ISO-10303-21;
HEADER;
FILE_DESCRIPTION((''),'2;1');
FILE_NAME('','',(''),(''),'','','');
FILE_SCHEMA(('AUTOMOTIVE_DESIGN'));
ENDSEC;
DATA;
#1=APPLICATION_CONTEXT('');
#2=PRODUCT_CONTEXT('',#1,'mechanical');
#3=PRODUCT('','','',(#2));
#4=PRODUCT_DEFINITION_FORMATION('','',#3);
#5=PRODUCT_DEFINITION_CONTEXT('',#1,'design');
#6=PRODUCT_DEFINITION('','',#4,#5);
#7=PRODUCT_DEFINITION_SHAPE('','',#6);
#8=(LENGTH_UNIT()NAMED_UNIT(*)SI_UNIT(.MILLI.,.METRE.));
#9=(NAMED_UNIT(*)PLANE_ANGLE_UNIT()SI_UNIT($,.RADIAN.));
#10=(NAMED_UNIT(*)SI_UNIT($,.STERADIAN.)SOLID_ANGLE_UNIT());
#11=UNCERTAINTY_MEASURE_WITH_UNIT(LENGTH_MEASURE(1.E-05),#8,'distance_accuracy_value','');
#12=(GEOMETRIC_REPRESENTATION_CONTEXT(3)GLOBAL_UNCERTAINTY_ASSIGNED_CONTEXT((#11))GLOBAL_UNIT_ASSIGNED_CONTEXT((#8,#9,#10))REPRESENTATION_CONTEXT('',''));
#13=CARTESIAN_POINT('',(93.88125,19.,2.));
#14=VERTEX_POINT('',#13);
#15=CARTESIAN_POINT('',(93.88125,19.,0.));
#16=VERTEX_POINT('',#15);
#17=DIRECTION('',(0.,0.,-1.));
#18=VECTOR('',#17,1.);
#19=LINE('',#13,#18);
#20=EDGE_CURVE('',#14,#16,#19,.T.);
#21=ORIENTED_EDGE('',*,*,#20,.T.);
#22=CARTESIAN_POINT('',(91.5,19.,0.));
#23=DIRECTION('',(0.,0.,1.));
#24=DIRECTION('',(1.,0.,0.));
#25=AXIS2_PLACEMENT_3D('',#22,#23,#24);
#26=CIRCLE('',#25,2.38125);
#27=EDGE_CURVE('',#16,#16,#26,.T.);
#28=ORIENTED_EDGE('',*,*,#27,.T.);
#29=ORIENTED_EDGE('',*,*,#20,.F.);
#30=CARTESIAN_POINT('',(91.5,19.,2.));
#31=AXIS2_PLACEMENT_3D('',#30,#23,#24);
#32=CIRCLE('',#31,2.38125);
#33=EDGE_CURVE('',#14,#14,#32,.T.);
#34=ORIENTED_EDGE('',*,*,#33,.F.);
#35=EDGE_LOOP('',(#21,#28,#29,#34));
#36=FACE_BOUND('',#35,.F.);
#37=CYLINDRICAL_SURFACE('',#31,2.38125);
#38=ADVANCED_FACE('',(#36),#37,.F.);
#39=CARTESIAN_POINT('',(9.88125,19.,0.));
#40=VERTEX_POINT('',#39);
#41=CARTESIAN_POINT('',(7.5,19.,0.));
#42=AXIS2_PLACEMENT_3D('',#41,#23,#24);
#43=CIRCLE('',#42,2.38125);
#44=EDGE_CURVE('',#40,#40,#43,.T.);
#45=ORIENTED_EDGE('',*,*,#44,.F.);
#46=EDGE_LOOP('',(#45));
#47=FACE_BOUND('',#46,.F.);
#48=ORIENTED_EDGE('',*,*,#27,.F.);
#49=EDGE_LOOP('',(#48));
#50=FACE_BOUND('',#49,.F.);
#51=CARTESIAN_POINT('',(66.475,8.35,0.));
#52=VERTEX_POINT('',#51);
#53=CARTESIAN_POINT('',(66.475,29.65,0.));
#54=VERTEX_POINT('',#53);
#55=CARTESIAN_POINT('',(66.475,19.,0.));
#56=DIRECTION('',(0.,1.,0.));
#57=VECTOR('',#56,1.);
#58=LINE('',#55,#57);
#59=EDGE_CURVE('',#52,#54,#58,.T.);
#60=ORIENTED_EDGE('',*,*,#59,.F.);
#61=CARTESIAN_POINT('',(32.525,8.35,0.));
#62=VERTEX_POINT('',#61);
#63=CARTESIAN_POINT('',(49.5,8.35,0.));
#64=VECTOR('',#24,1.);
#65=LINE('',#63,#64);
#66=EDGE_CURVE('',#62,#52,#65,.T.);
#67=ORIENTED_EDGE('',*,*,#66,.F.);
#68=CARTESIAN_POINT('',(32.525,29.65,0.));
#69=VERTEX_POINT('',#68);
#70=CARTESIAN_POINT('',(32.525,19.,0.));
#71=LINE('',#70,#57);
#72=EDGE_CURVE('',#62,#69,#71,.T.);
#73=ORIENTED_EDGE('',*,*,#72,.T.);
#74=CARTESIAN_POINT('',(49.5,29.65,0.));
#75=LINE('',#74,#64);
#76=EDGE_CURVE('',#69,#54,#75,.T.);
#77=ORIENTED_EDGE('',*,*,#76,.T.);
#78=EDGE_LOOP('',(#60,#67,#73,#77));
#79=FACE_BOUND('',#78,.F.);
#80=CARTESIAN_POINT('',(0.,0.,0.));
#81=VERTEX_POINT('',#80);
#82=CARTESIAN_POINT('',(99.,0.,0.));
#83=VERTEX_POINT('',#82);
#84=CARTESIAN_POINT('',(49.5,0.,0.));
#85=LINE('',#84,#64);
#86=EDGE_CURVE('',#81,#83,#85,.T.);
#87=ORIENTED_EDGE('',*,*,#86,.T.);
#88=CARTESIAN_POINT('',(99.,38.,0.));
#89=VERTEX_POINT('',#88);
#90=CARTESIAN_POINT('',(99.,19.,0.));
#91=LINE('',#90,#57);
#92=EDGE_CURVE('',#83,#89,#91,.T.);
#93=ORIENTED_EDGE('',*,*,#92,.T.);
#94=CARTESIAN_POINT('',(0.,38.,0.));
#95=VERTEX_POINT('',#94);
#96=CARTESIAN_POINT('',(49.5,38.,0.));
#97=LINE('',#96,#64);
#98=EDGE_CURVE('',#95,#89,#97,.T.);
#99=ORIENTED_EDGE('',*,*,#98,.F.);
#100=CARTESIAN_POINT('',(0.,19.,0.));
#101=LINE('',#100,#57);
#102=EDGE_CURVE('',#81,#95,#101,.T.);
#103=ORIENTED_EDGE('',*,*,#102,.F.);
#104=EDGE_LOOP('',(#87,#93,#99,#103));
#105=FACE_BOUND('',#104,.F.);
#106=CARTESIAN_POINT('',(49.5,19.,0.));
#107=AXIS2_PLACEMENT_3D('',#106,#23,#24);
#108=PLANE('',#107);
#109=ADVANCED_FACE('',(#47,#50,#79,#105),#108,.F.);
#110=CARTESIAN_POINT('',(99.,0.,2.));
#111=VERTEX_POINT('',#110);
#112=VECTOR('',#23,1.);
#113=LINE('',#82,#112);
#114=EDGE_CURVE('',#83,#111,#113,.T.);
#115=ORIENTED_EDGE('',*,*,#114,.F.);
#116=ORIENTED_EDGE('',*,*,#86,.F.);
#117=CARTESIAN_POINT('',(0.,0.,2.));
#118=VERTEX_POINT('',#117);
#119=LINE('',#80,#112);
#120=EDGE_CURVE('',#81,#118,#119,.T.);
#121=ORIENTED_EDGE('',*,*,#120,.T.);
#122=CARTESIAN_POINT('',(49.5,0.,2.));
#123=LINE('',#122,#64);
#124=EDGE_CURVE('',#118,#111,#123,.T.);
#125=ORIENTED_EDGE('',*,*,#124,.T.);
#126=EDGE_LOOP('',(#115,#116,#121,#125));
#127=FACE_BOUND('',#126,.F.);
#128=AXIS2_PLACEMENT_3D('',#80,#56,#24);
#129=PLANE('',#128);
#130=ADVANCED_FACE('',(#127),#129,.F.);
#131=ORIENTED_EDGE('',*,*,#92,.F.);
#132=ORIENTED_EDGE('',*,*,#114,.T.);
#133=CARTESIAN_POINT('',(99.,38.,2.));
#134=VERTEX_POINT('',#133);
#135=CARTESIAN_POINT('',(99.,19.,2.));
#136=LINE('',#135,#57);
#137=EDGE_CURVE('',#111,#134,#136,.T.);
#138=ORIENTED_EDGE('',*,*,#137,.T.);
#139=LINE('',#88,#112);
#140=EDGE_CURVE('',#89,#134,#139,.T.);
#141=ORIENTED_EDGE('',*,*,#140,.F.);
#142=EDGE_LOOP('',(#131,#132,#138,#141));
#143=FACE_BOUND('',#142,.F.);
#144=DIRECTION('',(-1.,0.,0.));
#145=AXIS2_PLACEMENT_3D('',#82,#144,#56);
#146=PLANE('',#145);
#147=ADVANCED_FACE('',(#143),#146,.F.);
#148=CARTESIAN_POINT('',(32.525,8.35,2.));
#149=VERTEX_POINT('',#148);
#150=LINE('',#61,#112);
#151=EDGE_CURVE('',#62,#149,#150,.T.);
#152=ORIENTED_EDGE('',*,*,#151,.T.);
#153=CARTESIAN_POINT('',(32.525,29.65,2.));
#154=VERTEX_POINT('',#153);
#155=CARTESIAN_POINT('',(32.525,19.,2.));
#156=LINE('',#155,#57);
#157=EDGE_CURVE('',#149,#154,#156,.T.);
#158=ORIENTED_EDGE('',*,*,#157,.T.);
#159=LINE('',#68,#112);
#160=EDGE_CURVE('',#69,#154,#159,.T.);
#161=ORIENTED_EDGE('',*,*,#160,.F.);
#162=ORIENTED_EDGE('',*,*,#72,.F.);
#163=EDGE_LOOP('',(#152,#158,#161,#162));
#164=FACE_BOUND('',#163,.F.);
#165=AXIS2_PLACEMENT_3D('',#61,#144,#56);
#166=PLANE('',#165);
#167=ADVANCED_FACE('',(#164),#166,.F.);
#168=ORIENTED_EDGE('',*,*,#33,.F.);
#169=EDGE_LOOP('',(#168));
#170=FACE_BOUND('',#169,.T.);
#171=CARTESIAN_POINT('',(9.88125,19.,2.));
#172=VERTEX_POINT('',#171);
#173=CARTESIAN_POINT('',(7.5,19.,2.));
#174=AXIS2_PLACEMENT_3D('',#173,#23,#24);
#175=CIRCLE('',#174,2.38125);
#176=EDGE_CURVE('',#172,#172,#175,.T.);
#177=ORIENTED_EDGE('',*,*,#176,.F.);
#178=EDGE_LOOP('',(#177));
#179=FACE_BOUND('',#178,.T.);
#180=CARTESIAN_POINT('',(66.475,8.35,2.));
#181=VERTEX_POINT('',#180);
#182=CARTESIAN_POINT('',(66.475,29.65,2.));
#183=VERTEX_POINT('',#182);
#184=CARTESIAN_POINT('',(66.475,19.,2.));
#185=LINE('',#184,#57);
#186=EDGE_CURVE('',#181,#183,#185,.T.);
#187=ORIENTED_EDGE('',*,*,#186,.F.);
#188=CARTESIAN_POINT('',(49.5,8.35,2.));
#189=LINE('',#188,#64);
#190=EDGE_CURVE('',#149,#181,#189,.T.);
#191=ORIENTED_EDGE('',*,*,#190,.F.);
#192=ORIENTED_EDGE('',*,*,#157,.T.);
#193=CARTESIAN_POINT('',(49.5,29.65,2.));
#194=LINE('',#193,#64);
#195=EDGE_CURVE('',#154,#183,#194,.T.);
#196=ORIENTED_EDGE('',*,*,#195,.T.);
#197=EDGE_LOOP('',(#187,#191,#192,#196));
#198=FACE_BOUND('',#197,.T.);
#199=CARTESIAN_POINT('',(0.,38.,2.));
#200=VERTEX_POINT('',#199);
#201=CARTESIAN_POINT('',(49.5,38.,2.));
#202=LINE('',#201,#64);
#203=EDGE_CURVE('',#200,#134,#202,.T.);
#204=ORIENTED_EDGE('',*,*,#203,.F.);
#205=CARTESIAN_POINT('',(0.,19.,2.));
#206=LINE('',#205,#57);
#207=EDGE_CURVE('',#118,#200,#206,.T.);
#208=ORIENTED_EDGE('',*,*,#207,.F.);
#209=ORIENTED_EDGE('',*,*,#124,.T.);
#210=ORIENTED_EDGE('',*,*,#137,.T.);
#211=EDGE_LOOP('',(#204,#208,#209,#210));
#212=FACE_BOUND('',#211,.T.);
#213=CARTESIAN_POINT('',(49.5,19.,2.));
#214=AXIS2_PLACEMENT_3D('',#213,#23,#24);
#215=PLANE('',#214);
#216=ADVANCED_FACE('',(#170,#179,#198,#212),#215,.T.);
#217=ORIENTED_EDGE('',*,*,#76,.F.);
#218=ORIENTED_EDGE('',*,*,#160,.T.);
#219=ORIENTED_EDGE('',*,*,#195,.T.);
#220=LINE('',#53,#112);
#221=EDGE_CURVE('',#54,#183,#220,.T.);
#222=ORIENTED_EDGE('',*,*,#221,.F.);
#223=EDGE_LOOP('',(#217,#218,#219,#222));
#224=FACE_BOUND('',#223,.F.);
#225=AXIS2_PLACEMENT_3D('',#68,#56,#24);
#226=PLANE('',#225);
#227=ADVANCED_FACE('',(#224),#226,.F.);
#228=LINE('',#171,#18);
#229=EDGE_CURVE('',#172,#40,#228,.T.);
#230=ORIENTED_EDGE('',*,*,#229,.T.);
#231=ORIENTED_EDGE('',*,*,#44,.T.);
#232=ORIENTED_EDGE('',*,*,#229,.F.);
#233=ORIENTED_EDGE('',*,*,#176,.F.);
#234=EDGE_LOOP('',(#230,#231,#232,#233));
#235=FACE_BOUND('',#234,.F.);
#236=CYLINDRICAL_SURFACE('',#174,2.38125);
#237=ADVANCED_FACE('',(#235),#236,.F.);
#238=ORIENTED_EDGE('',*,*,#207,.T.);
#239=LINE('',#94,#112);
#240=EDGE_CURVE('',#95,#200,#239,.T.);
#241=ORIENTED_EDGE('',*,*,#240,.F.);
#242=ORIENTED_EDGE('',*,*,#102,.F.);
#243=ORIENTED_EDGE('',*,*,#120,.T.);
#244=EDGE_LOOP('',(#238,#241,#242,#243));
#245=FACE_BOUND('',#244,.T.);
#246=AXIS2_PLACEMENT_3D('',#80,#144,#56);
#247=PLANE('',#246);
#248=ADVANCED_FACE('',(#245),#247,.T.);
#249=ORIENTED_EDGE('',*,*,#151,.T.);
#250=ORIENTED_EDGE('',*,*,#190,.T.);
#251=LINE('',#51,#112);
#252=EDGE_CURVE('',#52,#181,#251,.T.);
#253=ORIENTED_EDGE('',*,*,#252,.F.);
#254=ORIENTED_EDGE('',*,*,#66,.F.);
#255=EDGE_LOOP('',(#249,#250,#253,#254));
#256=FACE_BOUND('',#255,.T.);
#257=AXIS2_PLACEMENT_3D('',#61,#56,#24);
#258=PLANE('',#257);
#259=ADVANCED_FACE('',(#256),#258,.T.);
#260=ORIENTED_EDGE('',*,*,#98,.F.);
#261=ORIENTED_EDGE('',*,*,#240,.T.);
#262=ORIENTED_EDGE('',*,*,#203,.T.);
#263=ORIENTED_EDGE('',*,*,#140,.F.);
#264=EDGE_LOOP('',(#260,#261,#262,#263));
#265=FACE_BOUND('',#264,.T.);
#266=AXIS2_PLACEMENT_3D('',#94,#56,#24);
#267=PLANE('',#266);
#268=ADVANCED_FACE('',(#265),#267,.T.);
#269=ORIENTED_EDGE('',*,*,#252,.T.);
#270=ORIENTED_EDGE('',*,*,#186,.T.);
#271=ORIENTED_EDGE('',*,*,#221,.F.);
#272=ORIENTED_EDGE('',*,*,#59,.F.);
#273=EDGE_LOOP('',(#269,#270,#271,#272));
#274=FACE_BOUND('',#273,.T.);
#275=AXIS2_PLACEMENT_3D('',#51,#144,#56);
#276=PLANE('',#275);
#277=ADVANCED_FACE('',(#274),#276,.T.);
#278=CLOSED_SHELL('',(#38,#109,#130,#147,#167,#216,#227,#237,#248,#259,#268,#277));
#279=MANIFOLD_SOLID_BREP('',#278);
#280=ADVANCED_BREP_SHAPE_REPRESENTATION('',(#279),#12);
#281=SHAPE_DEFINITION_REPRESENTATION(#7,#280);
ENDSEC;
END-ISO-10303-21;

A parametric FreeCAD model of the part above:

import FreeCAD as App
import Part
import Sketcher
Q = App.Units.Quantity

doc = App.newDocument("Part")
body = doc.addObject("PartDesign::Body", "Body")

# Sketch on XY plane
sketch1 = body.newObject("Sketcher::SketchObject", "Sketch")
sketch1.AttachmentSupport = (doc.getObject("XY_Plane"), [""])
sketch1.MapMode = "FlatFace"
sketch1.addGeometry(Part.LineSegment(App.Vector(0, 38, 0), App.Vector(0, 0, 0)), False)
sketch1.addGeometry(Part.LineSegment(App.Vector(0, 0, 0), App.Vector(99, 0, 0)), False)
sketch1.addGeometry(Part.LineSegment(App.Vector(99, 0, 0), App.Vector(99, 38, 0)), False)
sketch1.addGeometry(Part.LineSegment(App.Vector(99, 38, 0), App.Vector(0, 38, 0)), False)
sketch1.addGeometry(Part.LineSegment(App.Vector(66.475, 8.35, 0), App.Vector(32.525, 8.35, 0)), False)
sketch1.addGeometry(Part.LineSegment(App.Vector(32.525, 8.35, 0), App.Vector(32.525, 29.65, 0)), False)
sketch1.addGeometry(Part.LineSegment(App.Vector(32.525, 29.65, 0), App.Vector(66.475, 29.65, 0)), False)
sketch1.addGeometry(Part.LineSegment(App.Vector(66.475, 29.65, 0), App.Vector(66.475, 8.35, 0)), False)
sketch1.addConstraint(Sketcher.Constraint("Coincident", 0, 2, 1, 1))
sketch1.addConstraint(Sketcher.Constraint("Coincident", 1, 2, 2, 1))
sketch1.addConstraint(Sketcher.Constraint("Coincident", 2, 2, 3, 1))
sketch1.addConstraint(Sketcher.Constraint("Coincident", 3, 2, 0, 1))
sketch1.addConstraint(Sketcher.Constraint("Coincident", 4, 2, 5, 1))
sketch1.addConstraint(Sketcher.Constraint("Coincident", 5, 2, 6, 1))
sketch1.addConstraint(Sketcher.Constraint("Coincident", 6, 2, 7, 1))
sketch1.addConstraint(Sketcher.Constraint("Coincident", 7, 2, 4, 1))
sketch1.addConstraint(Sketcher.Constraint("Vertical", 0))
sketch1.addConstraint(Sketcher.Constraint("Horizontal", 1))
sketch1.addConstraint(Sketcher.Constraint("Vertical", 2))
sketch1.addConstraint(Sketcher.Constraint("Horizontal", 3))
sketch1.addConstraint(Sketcher.Constraint("Horizontal", 4))
sketch1.addConstraint(Sketcher.Constraint("Vertical", 5))
sketch1.addConstraint(Sketcher.Constraint("Horizontal", 6))
sketch1.addConstraint(Sketcher.Constraint("Vertical", 7))
sketch1.addConstraint(Sketcher.Constraint("Coincident", 0, 2, -1, 1))
sketch1.addConstraint(Sketcher.Constraint("DistanceX", 1, 1, 1, 2, Q("99 mm")))
sketch1.addConstraint(Sketcher.Constraint("DistanceY", 0, 2, 0, 1, Q("38 mm")))
sketch1.addConstraint(Sketcher.Constraint("DistanceY", 5, 1, 5, 2, Q("21.3 mm")))
sketch1.addConstraint(Sketcher.Constraint("DistanceX", 4, 2, 4, 1, Q("33.95 mm")))
sketch1.addConstraint(Sketcher.Constraint("DistanceY", -1, 1, 4, 2, Q("8.35 mm")))
sketch1.addConstraint(Sketcher.Constraint("DistanceX", -1, 1, 4, 2, Q("32.525 mm")))
pad1 = body.newObject("PartDesign::Pad", "Pad")
pad1.Profile = sketch1
pad1.Length = 2

# Sketch on XY plane
sketch2 = body.newObject("Sketcher::SketchObject", "Sketch001")
sketch2.AttachmentSupport = (doc.getObject("XY_Plane"), [""])
sketch2.MapMode = "FlatFace"
sketch2.AttachmentOffset = App.Placement(App.Vector(0, 0, 2), App.Rotation())
sketch2.addGeometry(Part.Circle(App.Vector(7.5, 19, 0), App.Vector(0, 0, 1), 2.38125), False)
sketch2.addGeometry(Part.Circle(App.Vector(91.5, 19, 0), App.Vector(0, 0, 1), 2.38125), False)
sketch2.addConstraint(Sketcher.Constraint("Equal", 0, 1))
sketch2.addConstraint(Sketcher.Constraint("Horizontal", 0, 3, 1, 3))
sketch2.addConstraint(Sketcher.Constraint("DistanceY", -1, 1, 0, 3, Q("19 mm")))
sketch2.addConstraint(Sketcher.Constraint("DistanceX", 0, 3, 1, 3, Q("84 mm")))
sketch2.addConstraint(Sketcher.Constraint("Diameter", 0, Q("4.7625 mm")))
sketch2.addConstraint(Sketcher.Constraint("DistanceX", -1, 1, 0, 3, Q("7.5 mm")))
pocket1 = body.newObject("PartDesign::Pocket", "Pocket")
pocket1.Profile = sketch2
pocket1.Type = "ThroughAll"

doc.recompute()
